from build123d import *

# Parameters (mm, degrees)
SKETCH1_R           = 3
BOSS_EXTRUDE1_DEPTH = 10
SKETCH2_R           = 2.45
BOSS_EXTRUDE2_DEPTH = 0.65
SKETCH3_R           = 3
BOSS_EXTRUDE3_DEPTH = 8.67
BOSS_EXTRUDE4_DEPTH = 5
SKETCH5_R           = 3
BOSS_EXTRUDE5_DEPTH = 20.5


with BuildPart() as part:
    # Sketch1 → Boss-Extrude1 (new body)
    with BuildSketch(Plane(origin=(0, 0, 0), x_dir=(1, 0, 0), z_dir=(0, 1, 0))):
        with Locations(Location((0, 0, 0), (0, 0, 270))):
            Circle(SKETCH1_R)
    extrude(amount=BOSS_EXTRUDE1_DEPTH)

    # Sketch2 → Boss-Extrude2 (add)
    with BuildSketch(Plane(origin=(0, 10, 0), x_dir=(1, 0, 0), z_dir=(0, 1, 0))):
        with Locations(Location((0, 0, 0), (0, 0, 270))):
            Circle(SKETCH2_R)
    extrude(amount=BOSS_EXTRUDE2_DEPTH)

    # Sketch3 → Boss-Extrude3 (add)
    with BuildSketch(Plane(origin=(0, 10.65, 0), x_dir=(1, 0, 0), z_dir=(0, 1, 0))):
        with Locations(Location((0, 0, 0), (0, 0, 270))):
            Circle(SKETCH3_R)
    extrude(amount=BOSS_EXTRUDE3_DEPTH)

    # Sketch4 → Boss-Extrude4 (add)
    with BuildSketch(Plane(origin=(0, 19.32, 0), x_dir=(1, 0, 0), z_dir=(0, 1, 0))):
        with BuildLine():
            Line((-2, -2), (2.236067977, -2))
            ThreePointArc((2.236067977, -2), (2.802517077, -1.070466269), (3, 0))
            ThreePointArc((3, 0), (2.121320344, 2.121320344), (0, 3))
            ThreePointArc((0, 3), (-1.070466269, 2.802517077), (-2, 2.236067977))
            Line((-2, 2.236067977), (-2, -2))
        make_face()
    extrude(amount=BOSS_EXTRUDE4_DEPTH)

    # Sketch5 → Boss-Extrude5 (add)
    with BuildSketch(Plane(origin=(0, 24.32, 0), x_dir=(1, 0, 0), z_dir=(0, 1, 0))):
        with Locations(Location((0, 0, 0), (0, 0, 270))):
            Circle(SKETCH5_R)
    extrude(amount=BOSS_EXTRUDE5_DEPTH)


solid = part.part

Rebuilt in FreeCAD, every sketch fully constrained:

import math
import FreeCAD as App
import Part
import Sketcher

V = App.Vector

doc = App.newDocument("Part")
body = doc.addObject("PartDesign::Body", "Body")

# Sketch on XZ plane
sketch1 = body.newObject("Sketcher::SketchObject", "Sketch")
sketch1.AttachmentSupport = (doc.getObject("XZ_Plane"), [""])
sketch1.MapMode = "FlatFace"
sketch1.addGeometry(Part.Circle(V(0, 0, 0), V(0, 0, 1), 3), False)
sketch1.addConstraint(Sketcher.Constraint("Coincident", 0, 3, -1, 1))
sketch1.addConstraint(Sketcher.Constraint("Diameter", 0, 6.0))
pad1 = body.newObject("PartDesign::Pad", "Pad")
pad1.Profile = sketch1
pad1.Length = 10
pad1.Reversed = True

# Sketch on XZ plane
sketch2 = body.newObject("Sketcher::SketchObject", "Sketch001")
sketch2.AttachmentSupport = (doc.getObject("XZ_Plane"), [""])
sketch2.MapMode = "FlatFace"
sketch2.AttachmentOffset = App.Placement(V(0, 0, -10), App.Rotation())
sketch2.addGeometry(Part.Circle(V(0, 0, 0), V(0, 0, 1), 2.45), False)
sketch2.addConstraint(Sketcher.Constraint("Coincident", 0, 3, -1, 1))
sketch2.addConstraint(Sketcher.Constraint("Diameter", 0, 4.9))
pad2 = body.newObject("PartDesign::Pad", "Pad001")
pad2.Profile = sketch2
pad2.Length = 0.65
pad2.Reversed = True

# Sketch on XZ plane
sketch3 = body.newObject("Sketcher::SketchObject", "Sketch002")
sketch3.AttachmentSupport = (doc.getObject("XZ_Plane"), [""])
sketch3.MapMode = "FlatFace"
sketch3.AttachmentOffset = App.Placement(V(0, 0, -10.65), App.Rotation())
sketch3.addGeometry(Part.Circle(V(0, 0, 0), V(0, 0, 1), 3), False)
sketch3.addConstraint(Sketcher.Constraint("Coincident", 0, 3, -1, 1))
sketch3.addConstraint(Sketcher.Constraint("Diameter", 0, 6.0))
pad3 = body.newObject("PartDesign::Pad", "Pad002")
pad3.Profile = sketch3
pad3.Length = 8.67
pad3.Reversed = True

# Sketch on XZ plane
sketch4 = body.newObject("Sketcher::SketchObject", "Sketch003")
sketch4.AttachmentSupport = (doc.getObject("XZ_Plane"), [""])
sketch4.MapMode = "FlatFace"
sketch4.AttachmentOffset = App.Placement(V(0, 0, -19.32), App.Rotation())
sketch4.addGeometry(Part.LineSegment(V(-2, 2, 0), V(2.236068, 2, 0)), False)
sketch4.addGeometry(Part.ArcOfCircle(Part.Circle(V(0, 0, 0), V(0, 0, 1), 3), math.radians(0), math.radians(41.810315)), False)
sketch4.addGeometry(Part.ArcOfCircle(Part.Circle(V(0, 0, 0), V(0, 0, 1), 3), math.radians(-90), math.radians(0)), False)
sketch4.addGeometry(Part.ArcOfCircle(Part.Circle(V(0, 0, 0), V(0, 0, 1), 3), math.radians(-131.810315), math.radians(-90)), False)
sketch4.addGeometry(Part.LineSegment(V(-2, -2.236068, 0), V(-2, 2, 0)), False)
sketch4.addConstraint(Sketcher.Constraint("Coincident", 0, 2, 1, 2))
sketch4.addConstraint(Sketcher.Constraint("Tangent", 1, 1, 2, 2))
sketch4.addConstraint(Sketcher.Constraint("Tangent", 2, 1, 3, 2))
sketch4.addConstraint(Sketcher.Constraint("Coincident", 3, 1, 4, 1))
sketch4.addConstraint(Sketcher.Constraint("Coincident", 4, 2, 0, 1))
sketch4.addConstraint(Sketcher.Constraint("Horizontal", 0))
sketch4.addConstraint(Sketcher.Constraint("Vertical", 4))
sketch4.addConstraint(Sketcher.Constraint("Coincident", 1, 3, -1, 1))
sketch4.addConstraint(Sketcher.Constraint("Coincident", 3, 3, -1, 1))
sketch4.addConstraint(Sketcher.Constraint("PointOnObject", 1, 1, -1))
sketch4.addConstraint(Sketcher.Constraint("PointOnObject", 2, 1, -2))
sketch4.addConstraint(Sketcher.Constraint("Equal", 0, 4))
sketch4.addConstraint(Sketcher.Constraint("Radius", 1, 3.0))
sketch4.addConstraint(Sketcher.Constraint("DistanceY", -1, 1, 0, 2, 2.0))
pad4 = body.newObject("PartDesign::Pad", "Pad003")
pad4.Profile = sketch4
pad4.Length = 5
pad4.Reversed = True

# Sketch on XZ plane
sketch5 = body.newObject("Sketcher::SketchObject", "Sketch004")
sketch5.AttachmentSupport = (doc.getObject("XZ_Plane"), [""])
sketch5.MapMode = "FlatFace"
sketch5.AttachmentOffset = App.Placement(V(0, 0, -24.32), App.Rotation())
sketch5.addGeometry(Part.Circle(V(0, 0, 0), V(0, 0, 1), 3), False)
sketch5.addConstraint(Sketcher.Constraint("Coincident", 0, 3, -1, 1))
sketch5.addConstraint(Sketcher.Constraint("Diameter", 0, 6.0))
pad5 = body.newObject("PartDesign::Pad", "Pad004")
pad5.Profile = sketch5
pad5.Length = 20.5
pad5.Reversed = True

doc.recompute()
